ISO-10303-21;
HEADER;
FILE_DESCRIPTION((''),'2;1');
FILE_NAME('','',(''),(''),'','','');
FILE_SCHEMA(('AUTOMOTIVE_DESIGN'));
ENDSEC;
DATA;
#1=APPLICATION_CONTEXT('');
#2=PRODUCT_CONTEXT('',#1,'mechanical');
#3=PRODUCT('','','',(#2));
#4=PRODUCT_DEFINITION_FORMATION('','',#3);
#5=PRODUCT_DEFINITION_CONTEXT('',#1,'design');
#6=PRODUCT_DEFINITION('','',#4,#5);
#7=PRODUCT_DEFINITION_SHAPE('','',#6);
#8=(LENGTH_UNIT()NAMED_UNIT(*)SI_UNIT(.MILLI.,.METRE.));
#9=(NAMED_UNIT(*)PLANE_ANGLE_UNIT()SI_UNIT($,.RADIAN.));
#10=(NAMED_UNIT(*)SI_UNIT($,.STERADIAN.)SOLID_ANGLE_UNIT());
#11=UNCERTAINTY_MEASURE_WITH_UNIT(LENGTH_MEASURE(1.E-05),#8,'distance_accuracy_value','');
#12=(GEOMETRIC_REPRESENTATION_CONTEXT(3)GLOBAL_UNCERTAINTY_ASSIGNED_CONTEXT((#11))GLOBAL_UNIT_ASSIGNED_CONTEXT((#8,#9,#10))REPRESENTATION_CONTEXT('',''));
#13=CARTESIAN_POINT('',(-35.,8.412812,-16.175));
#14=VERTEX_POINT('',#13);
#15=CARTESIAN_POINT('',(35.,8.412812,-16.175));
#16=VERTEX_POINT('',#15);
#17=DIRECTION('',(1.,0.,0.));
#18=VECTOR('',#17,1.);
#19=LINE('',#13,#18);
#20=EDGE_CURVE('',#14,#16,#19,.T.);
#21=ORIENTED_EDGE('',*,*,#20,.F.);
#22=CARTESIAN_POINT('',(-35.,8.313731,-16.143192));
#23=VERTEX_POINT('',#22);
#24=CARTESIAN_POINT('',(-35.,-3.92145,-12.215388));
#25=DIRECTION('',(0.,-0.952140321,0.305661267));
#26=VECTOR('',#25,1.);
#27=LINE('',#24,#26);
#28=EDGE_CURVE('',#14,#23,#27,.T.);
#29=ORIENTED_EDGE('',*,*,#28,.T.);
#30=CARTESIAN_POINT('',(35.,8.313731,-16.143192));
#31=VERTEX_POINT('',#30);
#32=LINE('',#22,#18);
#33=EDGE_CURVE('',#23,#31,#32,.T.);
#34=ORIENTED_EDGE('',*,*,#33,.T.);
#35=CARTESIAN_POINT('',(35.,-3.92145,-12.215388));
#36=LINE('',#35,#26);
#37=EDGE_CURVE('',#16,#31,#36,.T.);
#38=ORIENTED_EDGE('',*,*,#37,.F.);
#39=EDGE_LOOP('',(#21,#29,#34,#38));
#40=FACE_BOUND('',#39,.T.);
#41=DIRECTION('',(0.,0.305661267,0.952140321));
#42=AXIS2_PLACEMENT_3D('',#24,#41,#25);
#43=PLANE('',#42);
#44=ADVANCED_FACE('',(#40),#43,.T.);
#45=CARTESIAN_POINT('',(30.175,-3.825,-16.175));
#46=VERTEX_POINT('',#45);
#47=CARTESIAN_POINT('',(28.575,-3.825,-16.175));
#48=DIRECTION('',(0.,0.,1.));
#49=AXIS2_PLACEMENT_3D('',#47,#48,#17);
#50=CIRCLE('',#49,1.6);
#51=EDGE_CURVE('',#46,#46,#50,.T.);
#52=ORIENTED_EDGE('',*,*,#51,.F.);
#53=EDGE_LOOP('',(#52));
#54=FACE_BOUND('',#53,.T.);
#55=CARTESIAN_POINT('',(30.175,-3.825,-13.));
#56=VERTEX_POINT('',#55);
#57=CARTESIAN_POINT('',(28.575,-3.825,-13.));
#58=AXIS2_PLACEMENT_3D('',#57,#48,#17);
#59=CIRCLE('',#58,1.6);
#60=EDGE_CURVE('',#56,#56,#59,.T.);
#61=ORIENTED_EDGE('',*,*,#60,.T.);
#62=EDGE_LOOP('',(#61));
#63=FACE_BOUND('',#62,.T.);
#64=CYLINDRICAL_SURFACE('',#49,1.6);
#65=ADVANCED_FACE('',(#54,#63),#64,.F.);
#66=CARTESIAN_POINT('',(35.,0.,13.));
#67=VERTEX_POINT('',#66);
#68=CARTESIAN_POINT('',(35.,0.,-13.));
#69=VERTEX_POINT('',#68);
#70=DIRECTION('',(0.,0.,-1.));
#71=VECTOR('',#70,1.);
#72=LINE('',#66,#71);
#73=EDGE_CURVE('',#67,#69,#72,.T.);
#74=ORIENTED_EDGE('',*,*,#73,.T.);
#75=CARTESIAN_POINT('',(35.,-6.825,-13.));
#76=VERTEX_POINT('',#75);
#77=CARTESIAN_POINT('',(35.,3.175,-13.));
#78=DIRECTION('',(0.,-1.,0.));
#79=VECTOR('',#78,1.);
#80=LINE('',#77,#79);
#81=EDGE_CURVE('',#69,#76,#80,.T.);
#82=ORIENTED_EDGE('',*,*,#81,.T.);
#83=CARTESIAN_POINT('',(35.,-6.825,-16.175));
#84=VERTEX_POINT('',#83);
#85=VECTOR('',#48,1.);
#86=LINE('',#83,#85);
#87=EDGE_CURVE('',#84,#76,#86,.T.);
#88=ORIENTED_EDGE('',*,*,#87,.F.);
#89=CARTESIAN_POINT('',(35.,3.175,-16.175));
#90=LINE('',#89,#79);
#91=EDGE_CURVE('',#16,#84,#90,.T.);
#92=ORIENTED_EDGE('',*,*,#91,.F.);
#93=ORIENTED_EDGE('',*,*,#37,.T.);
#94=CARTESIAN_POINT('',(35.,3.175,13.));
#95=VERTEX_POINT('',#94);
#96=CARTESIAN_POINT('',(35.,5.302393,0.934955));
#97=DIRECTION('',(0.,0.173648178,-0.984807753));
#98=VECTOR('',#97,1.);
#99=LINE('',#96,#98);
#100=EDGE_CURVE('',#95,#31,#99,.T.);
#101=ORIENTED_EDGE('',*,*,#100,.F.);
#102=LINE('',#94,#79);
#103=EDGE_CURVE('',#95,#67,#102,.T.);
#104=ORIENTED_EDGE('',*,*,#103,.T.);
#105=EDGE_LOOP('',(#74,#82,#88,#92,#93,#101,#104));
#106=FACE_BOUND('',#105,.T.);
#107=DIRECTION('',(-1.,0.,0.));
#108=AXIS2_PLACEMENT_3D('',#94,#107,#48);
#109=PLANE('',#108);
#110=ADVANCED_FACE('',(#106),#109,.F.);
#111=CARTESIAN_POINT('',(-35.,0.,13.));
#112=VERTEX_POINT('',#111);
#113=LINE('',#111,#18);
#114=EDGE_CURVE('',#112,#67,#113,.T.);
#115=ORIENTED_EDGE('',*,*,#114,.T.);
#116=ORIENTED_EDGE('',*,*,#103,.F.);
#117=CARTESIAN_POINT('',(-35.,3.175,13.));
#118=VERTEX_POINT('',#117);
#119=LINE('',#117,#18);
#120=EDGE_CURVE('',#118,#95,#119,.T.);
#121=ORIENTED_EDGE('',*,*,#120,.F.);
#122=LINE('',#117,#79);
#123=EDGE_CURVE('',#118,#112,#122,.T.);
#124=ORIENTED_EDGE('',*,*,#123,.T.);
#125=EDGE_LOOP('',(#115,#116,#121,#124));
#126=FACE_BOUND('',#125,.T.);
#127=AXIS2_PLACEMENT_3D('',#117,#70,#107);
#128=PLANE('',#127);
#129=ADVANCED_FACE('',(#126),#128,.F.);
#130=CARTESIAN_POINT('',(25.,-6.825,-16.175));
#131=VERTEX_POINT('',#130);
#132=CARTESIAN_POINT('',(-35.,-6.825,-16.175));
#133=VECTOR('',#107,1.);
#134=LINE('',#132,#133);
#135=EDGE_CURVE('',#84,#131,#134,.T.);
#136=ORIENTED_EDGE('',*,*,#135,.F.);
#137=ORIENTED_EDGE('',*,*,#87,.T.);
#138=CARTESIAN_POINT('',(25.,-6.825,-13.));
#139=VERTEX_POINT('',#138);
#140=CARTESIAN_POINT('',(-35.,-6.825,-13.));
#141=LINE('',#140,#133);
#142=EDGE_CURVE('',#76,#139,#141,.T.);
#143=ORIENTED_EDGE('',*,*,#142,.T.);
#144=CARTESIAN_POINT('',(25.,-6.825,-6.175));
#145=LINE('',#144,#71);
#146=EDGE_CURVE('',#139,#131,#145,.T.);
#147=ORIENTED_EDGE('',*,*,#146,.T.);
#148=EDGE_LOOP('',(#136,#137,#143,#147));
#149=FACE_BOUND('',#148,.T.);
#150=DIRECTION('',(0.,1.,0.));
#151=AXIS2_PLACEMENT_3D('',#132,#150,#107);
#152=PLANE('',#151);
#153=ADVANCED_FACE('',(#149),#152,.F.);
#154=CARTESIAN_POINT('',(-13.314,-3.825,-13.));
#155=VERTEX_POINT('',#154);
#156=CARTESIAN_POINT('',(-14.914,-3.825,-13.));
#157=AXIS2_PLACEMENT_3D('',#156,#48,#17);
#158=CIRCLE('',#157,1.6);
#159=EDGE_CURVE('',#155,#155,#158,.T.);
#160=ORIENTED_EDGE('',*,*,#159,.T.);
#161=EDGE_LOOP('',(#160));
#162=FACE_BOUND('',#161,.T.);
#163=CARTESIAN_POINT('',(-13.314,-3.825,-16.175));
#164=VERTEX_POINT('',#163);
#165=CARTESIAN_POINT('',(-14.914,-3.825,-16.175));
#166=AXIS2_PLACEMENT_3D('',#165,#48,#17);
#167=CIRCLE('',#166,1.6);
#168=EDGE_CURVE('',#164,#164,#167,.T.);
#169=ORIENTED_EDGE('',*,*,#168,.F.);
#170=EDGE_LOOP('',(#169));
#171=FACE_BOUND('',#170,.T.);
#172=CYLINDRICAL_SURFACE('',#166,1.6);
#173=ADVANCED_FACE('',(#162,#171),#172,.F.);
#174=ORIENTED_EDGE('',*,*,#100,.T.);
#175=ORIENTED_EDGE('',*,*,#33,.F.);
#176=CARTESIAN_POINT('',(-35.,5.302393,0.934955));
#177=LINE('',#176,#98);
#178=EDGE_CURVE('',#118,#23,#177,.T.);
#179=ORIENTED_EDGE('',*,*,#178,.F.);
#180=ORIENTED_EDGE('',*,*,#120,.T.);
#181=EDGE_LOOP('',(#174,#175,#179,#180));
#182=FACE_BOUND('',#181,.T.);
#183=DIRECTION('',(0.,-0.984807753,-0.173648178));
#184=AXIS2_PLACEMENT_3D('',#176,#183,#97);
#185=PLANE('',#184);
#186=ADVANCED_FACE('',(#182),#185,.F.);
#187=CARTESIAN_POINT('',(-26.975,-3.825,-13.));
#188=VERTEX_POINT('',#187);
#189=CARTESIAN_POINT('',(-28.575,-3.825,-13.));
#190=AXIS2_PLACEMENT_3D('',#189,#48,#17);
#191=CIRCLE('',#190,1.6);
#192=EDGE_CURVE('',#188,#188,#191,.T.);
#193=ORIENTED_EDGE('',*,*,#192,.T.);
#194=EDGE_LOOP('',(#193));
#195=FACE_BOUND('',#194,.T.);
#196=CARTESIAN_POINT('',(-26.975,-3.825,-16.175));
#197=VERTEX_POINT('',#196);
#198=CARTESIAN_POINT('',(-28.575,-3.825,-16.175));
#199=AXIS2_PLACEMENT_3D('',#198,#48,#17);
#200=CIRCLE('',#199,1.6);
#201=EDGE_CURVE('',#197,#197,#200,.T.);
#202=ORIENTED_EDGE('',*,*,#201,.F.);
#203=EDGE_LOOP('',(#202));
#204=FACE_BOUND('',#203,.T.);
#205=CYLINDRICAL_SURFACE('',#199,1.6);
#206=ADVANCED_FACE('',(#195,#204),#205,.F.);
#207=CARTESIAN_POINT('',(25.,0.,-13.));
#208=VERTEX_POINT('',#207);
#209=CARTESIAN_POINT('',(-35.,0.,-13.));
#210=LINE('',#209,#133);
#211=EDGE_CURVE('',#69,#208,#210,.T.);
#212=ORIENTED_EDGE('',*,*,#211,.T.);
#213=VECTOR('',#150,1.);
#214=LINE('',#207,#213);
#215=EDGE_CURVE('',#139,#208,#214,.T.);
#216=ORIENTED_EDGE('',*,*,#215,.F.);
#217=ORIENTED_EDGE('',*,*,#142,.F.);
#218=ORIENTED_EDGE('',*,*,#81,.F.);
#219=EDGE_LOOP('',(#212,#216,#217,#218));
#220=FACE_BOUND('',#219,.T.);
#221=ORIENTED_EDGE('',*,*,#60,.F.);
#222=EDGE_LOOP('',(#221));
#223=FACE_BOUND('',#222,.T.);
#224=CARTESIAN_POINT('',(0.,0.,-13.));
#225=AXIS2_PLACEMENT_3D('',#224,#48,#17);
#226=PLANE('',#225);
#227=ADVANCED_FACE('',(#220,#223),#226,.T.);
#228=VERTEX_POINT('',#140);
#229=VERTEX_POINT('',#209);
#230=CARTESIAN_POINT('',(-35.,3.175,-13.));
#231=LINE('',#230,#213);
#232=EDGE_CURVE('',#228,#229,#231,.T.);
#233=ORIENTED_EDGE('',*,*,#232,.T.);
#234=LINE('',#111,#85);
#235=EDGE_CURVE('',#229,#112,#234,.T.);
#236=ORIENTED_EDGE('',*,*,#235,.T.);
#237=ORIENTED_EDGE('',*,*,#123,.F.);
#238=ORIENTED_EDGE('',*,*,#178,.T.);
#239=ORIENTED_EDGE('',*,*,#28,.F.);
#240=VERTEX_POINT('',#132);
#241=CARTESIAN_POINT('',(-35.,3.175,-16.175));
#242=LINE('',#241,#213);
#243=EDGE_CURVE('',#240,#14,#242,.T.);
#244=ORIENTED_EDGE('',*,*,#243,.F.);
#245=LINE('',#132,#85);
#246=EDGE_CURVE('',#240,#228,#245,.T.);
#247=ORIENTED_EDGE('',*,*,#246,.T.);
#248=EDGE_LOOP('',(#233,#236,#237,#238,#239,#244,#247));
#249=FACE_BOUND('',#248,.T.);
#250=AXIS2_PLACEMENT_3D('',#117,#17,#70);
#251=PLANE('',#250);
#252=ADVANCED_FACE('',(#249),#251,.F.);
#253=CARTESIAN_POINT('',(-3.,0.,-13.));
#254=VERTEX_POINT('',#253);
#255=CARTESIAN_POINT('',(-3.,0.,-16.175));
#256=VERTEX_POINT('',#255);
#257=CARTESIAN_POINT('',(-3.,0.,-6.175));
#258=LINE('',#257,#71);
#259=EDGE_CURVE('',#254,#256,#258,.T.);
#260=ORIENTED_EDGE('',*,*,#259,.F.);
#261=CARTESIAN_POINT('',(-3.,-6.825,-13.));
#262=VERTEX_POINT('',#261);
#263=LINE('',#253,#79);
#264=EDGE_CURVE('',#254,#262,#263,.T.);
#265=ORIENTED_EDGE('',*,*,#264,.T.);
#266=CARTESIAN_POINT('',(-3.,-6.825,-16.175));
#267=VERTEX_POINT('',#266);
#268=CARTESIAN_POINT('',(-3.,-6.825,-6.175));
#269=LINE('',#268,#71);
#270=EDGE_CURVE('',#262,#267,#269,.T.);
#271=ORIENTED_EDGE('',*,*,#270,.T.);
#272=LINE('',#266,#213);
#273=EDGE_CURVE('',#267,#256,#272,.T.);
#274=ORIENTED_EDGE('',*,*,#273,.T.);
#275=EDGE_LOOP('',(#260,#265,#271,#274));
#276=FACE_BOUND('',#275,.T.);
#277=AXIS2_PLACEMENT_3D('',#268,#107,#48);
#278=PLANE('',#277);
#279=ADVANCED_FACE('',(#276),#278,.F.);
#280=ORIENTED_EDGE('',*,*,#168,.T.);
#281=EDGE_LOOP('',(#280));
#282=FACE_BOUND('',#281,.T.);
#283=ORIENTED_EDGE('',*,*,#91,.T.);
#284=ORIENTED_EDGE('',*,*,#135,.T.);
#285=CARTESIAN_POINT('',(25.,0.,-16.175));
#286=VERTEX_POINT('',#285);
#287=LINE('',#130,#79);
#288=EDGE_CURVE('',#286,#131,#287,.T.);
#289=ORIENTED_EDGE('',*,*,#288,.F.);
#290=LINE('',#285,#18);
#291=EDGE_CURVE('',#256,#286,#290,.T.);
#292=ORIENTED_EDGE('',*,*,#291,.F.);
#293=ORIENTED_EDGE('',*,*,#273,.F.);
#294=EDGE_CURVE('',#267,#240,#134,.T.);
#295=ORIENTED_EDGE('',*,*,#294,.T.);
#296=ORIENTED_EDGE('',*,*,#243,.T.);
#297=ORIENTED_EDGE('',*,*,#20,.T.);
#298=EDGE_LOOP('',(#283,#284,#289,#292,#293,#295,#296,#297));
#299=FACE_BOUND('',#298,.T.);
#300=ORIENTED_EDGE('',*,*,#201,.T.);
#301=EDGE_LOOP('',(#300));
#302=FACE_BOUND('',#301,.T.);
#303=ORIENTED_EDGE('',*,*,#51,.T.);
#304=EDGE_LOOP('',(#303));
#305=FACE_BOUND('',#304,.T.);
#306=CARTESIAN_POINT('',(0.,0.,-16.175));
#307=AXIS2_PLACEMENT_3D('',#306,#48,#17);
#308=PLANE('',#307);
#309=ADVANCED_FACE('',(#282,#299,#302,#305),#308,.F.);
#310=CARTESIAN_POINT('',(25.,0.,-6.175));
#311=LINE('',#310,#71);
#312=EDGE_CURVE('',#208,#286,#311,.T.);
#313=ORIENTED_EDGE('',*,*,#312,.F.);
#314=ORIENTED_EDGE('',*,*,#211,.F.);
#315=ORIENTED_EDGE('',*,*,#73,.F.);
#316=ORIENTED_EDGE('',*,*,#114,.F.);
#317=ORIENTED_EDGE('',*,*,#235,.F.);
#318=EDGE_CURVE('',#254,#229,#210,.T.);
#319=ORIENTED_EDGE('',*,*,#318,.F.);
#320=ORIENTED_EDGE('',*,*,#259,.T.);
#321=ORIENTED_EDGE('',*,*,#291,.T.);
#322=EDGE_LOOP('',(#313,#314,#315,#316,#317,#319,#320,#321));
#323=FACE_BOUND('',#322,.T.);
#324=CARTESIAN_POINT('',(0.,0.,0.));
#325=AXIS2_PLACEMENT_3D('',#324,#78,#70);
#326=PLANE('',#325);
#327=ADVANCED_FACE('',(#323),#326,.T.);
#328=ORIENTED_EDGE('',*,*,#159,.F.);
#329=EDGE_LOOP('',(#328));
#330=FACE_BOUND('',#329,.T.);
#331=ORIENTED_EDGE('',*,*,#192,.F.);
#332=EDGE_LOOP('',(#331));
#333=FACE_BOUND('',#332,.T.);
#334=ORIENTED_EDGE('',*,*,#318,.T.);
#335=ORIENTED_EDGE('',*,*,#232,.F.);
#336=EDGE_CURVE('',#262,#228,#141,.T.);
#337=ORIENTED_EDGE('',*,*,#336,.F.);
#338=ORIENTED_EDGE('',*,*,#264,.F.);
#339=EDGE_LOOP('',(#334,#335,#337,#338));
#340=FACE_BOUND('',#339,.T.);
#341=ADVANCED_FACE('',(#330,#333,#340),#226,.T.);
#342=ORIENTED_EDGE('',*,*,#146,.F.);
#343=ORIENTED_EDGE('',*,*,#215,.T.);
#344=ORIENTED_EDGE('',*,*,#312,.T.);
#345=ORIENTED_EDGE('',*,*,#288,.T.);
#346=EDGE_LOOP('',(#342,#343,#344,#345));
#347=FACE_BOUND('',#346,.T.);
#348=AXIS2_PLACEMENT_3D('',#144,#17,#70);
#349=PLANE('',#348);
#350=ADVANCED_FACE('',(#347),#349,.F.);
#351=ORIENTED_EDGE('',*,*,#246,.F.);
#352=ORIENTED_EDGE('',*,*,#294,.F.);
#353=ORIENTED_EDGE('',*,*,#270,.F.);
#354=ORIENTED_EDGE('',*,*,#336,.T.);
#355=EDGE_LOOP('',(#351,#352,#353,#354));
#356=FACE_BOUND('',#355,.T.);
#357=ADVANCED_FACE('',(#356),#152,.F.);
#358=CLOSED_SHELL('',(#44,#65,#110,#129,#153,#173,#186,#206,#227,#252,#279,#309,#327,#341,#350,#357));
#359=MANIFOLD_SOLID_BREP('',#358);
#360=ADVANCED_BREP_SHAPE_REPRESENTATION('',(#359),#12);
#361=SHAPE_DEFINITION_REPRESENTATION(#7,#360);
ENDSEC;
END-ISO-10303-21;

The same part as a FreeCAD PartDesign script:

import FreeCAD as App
import Part
import Sketcher
from FreeCAD import Vector
Q = App.Units.Quantity


def add_polygon(sketch, points):
    """Adds a closed chain of lines whose ends are joined by coincident constraints."""
    first, n = sketch.GeometryCount, len(points)
    for a, b in zip(points, points[1:] + points[:1]):
        sketch.addGeometry(Part.LineSegment(App.Vector(*a, 0), App.Vector(*b, 0)), False)
    for i in range(n):
        sketch.addConstraint(Sketcher.Constraint("Coincident", first + i, 2, first + (i + 1) % n, 1))

doc = App.newDocument("Part")
params = doc.addObject("Spreadsheet::Sheet", "Params")
for row, (alias, value) in enumerate([
    ("sketch1_width", "70 mm"),
    ("sketch1_height", "26 mm"),
    ("pad1_length", "3.175 mm"),
    ("sketch2_width", "70 mm"),
    ("sketch2_height", "10 mm"),
    ("pad2_length", "3.175 mm"),
    ("sketch3_diameter", "3.2 mm"),
    ("pocket1_length", "3.175 mm"),
    ("pad3_length", "70 mm"),
    ("sketch5_width", "28 mm"),
    ("pocket2_length", "10 mm"),
], start=1):
    params.set(f"A{row}", alias)
    params.set(f"B{row}", "=" + value)
    params.setAlias(f"B{row}", alias)

body = doc.addObject("PartDesign::Body", "Body")

# Sketch on XZ plane
sketch1 = body.newObject("Sketcher::SketchObject", "Sketch")
sketch1.AttachmentSupport = (doc.getObject("XZ_Plane"), [""])
sketch1.MapMode = "FlatFace"
add_polygon(sketch1, [(-35, -13), (-35, 13), (35, 13), (35, -13)])  # lines 0-3
sketch1.addConstraint(Sketcher.Constraint("Vertical", 0))
sketch1.addConstraint(Sketcher.Constraint("Horizontal", 1))
sketch1.addConstraint(Sketcher.Constraint("Vertical", 2))
sketch1.addConstraint(Sketcher.Constraint("Horizontal", 3))
sketch1.addConstraint(Sketcher.Constraint("Symmetric", 0, 2, 2, 2, -1, 1))
sketch1.addConstraint(Sketcher.Constraint("DistanceX", 1, 1, 1, 2, 70.0))
sketch1.addConstraint(Sketcher.Constraint("DistanceY", 0, 1, 0, 2, 26.0))
sketch1.setExpression("Constraints[9]", "Params.sketch1_width")
sketch1.setExpression("Constraints[10]", "Params.sketch1_height")
pad1 = body.newObject("PartDesign::Pad", "Pad")
pad1.Profile = sketch1
pad1.setExpression("Length", "Params.pad1_length")
pad1.Reversed = True

# Sketch on XY plane
sketch2 = body.newObject("Sketcher::SketchObject", "Sketch001")
sketch2.AttachmentSupport = (doc.getObject("XY_Plane"), [""])
sketch2.MapMode = "FlatFace"
sketch2.AttachmentOffset = App.Placement(Vector(0, 0, -13), App.Rotation())
add_polygon(sketch2, [(35, 3), (35, -7), (-35, -7), (-35, 3)])  # lines 0-3
sketch2.addConstraint(Sketcher.Constraint("Vertical", 0))
sketch2.addConstraint(Sketcher.Constraint("Horizontal", 1))
sketch2.addConstraint(Sketcher.Constraint("Vertical", 2))
sketch2.addConstraint(Sketcher.Constraint("Horizontal", 3))
sketch2.addConstraint(Sketcher.Constraint("DistanceX", 1, 2, 1, 1, 70.0))
sketch2.addConstraint(Sketcher.Constraint("DistanceY", 0, 2, 0, 1, 10.0))
sketch2.addConstraint(Sketcher.Constraint("DistanceX", -1, 1, 0, 2, 35.0))
sketch2.addConstraint(Sketcher.Constraint("DistanceY", 0, 2, -1, 1, 6.825))
sketch2.setExpression("Constraints[8]", "Params.sketch2_width")
sketch2.setExpression("Constraints[9]", "Params.sketch2_height")
pad2 = body.newObject("PartDesign::Pad", "Pad001")
pad2.Profile = sketch2
pad2.setExpression("Length", "Params.pad2_length")
pad2.Reversed = True

# Sketch on XY plane
sketch3 = body.newObject("Sketcher::SketchObject", "Sketch002")
sketch3.AttachmentSupport = (doc.getObject("XY_Plane"), [""])
sketch3.MapMode = "FlatFace"
sketch3.AttachmentOffset = App.Placement(Vector(0, 0, -13), App.Rotation())
sketch3.addGeometry(Part.Circle(Vector(-14.9, -3.8, 0), Vector(0, 0, 1), 1.6), False)
sketch3.addGeometry(Part.Circle(Vector(28.6, -3.8, 0), Vector(0, 0, 1), 1.6), False)
sketch3.addGeometry(Part.Circle(Vector(-28.6, -3.8, 0), Vector(0, 0, 1), 1.6), False)
sketch3.addConstraint(Sketcher.Constraint("Equal", 0, 1))
sketch3.addConstraint(Sketcher.Constraint("Equal", 1, 2))
sketch3.addConstraint(Sketcher.Constraint("Symmetric", 1, 3, 2, 3, -2))
sketch3.addConstraint(Sketcher.Constraint("Horizontal", 0, 3, 1, 3))
sketch3.addConstraint(Sketcher.Constraint("Diameter", 0, 3.2))
sketch3.addConstraint(Sketcher.Constraint("DistanceX", 2, 3, 1, 3, 57.15))
sketch3.addConstraint(Sketcher.Constraint("DistanceX", 0, 3, -1, 1, 14.914))
sketch3.addConstraint(Sketcher.Constraint("DistanceY", 0, 3, -1, 1, 3.825))
sketch3.setExpression("Constraints[4]", "Params.sketch3_diameter")
pocket1 = body.newObject("PartDesign::Pocket", "Pocket")
pocket1.Profile = sketch3
pocket1.setExpression("Length", "Params.pocket1_length")

# Sketch on YZ plane
sketch4 = body.newObject("Sketcher::SketchObject", "Sketch003")
sketch4.AttachmentSupport = (doc.getObject("YZ_Plane"), [""])
sketch4.MapMode = "FlatFace"
sketch4.AttachmentOffset = App.Placement(Vector(0, 0, 35), App.Rotation())
add_polygon(sketch4, [(3.17, -16.18), (8.41, -16.18), (8.31, -16.14), (3.17, 13)])  # lines 0-3
sketch4.addConstraint(Sketcher.Constraint("Horizontal", 0))
sketch4.addConstraint(Sketcher.Constraint("Vertical", 3))
sketch4.addConstraint(Sketcher.Constraint("Angle", 2, Q("100 deg")))
sketch4.addConstraint(Sketcher.Constraint("DistanceY", -1, 1, 2, 2, 13.0))
sketch4.addConstraint(Sketcher.Constraint("DistanceY", 3, 2, 3, 1, 29.175))
sketch4.addConstraint(Sketcher.Constraint("DistanceX", -1, 1, 2, 2, 3.175))
sketch4.addConstraint(Sketcher.Constraint("Distance", 1, 0.104061))
sketch4.addConstraint(Sketcher.Constraint("DistanceX", 0, 1, 0, 2, 5.237812))
pad3 = body.newObject("PartDesign::Pad", "Pad002")
pad3.Profile = sketch4
pad3.setExpression("Length", "Params.pad3_length")
pad3.Reversed = True

# Sketch on XY plane
sketch5 = body.newObject("Sketcher::SketchObject", "Sketch004")
sketch5.AttachmentSupport = (doc.getObject("XY_Plane"), [""])
sketch5.MapMode = "FlatFace"
sketch5.AttachmentOffset = App.Placement(Vector(0, 0, -16.175), App.Rotation())
add_polygon(sketch5, [(25, 0), (25, -7), (-3, -7), (-3, 0)])  # lines 0-3
sketch5.addConstraint(Sketcher.Constraint("Vertical", 0))
sketch5.addConstraint(Sketcher.Constraint("Horizontal", 1))
sketch5.addConstraint(Sketcher.Constraint("Vertical", 2))
sketch5.addConstraint(Sketcher.Constraint("Horizontal", 3))
sketch5.addConstraint(Sketcher.Constraint("PointOnObject", 2, 2, -1))
sketch5.addConstraint(Sketcher.Constraint("DistanceX", 1, 2, 1, 1, 28.0))
sketch5.addConstraint(Sketcher.Constraint("DistanceX", -1, 1, 0, 2, 25.0))
sketch5.addConstraint(Sketcher.Constraint("DistanceY", 0, 2, 0, 1, 6.825))
sketch5.setExpression("Constraints[9]", "Params.sketch5_width")
pocket2 = body.newObject("PartDesign::Pocket", "Pocket001")
pocket2.Profile = sketch5
pocket2.setExpression("Length", "Params.pocket2_length")
pocket2.Reversed = True

doc.recompute()
